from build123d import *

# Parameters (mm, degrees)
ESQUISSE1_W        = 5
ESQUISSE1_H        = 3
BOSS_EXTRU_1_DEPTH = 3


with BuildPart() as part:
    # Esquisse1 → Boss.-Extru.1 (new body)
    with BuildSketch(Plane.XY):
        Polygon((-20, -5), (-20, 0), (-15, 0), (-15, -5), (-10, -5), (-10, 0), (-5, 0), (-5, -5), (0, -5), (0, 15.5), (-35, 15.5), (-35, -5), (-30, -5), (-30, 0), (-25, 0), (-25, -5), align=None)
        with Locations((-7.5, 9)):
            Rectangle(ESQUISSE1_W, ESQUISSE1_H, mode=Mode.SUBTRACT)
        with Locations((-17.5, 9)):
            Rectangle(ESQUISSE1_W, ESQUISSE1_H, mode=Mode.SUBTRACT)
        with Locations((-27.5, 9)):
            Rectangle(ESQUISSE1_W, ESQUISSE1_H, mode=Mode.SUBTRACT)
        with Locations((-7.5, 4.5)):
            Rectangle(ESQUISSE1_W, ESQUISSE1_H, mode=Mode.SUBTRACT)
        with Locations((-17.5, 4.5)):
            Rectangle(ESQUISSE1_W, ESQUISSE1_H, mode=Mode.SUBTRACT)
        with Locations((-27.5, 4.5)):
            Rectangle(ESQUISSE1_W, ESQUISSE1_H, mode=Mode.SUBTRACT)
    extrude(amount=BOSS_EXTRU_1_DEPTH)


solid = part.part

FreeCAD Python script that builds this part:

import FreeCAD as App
import Part
import Sketcher
Q = App.Units.Quantity

doc = App.newDocument("Part")
body = doc.addObject("PartDesign::Body", "Body")

# Sketch on XY plane
sketch1 = doc.addObject("Sketcher::SketchObject", "Sketch")
body.addObject(sketch1)
sketch1.AttachmentSupport = (doc.XY_Plane, [""])
sketch1.MapMode = "FlatFace"
sketch1.addGeometry([
    Part.LineSegment(App.Vector(-20, -5, 0), App.Vector(-20, 0, 0)),  # 0
    Part.LineSegment(App.Vector(-20, 0, 0), App.Vector(-15, 0, 0)),  # 1
    Part.LineSegment(App.Vector(-15, 0, 0), App.Vector(-15, -5, 0)),  # 2
    Part.LineSegment(App.Vector(-15, -5, 0), App.Vector(-10, -5, 0)),  # 3
    Part.LineSegment(App.Vector(-10, -5, 0), App.Vector(-10, 0, 0)),  # 4
    Part.LineSegment(App.Vector(-10, 0, 0), App.Vector(-5, 0, 0)),  # 5
    Part.LineSegment(App.Vector(-5, 0, 0), App.Vector(-5, -5, 0)),  # 6
    Part.LineSegment(App.Vector(-5, -5, 0), App.Vector(0, -5, 0)),  # 7
    Part.LineSegment(App.Vector(0, -5, 0), App.Vector(0, 15.5, 0)),  # 8
    Part.LineSegment(App.Vector(0, 15.5, 0), App.Vector(-35, 15.5, 0)),  # 9
    Part.LineSegment(App.Vector(-35, 15.5, 0), App.Vector(-35, -5, 0)),  # 10
    Part.LineSegment(App.Vector(-35, -5, 0), App.Vector(-30, -5, 0)),  # 11
    Part.LineSegment(App.Vector(-30, -5, 0), App.Vector(-30, 0, 0)),  # 12
    Part.LineSegment(App.Vector(-30, 0, 0), App.Vector(-25, 0, 0)),  # 13
    Part.LineSegment(App.Vector(-25, 0, 0), App.Vector(-25, -5, 0)),  # 14
    Part.LineSegment(App.Vector(-25, -5, 0), App.Vector(-20, -5, 0)),  # 15
    Part.LineSegment(App.Vector(-25, 3, 0), App.Vector(-30, 3, 0)),  # 16
    Part.LineSegment(App.Vector(-30, 3, 0), App.Vector(-30, 6, 0)),  # 17
    Part.LineSegment(App.Vector(-30, 6, 0), App.Vector(-25, 6, 0)),  # 18
    Part.LineSegment(App.Vector(-25, 6, 0), App.Vector(-25, 3, 0)),  # 19
    Part.LineSegment(App.Vector(-15, 3, 0), App.Vector(-20, 3, 0)),  # 20
    Part.LineSegment(App.Vector(-20, 3, 0), App.Vector(-20, 6, 0)),  # 21
    Part.LineSegment(App.Vector(-20, 6, 0), App.Vector(-15, 6, 0)),  # 22
    Part.LineSegment(App.Vector(-15, 6, 0), App.Vector(-15, 3, 0)),  # 23
    Part.LineSegment(App.Vector(-5, 3, 0), App.Vector(-10, 3, 0)),  # 24
    Part.LineSegment(App.Vector(-10, 3, 0), App.Vector(-10, 6, 0)),  # 25
    Part.LineSegment(App.Vector(-10, 6, 0), App.Vector(-5, 6, 0)),  # 26
    Part.LineSegment(App.Vector(-5, 6, 0), App.Vector(-5, 3, 0)),  # 27
    Part.LineSegment(App.Vector(-25, 7.5, 0), App.Vector(-30, 7.5, 0)),  # 28
    Part.LineSegment(App.Vector(-30, 7.5, 0), App.Vector(-30, 10.5, 0)),  # 29
    Part.LineSegment(App.Vector(-30, 10.5, 0), App.Vector(-25, 10.5, 0)),  # 30
    Part.LineSegment(App.Vector(-25, 10.5, 0), App.Vector(-25, 7.5, 0)),  # 31
    Part.LineSegment(App.Vector(-15, 7.5, 0), App.Vector(-20, 7.5, 0)),  # 32
    Part.LineSegment(App.Vector(-20, 7.5, 0), App.Vector(-20, 10.5, 0)),  # 33
    Part.LineSegment(App.Vector(-20, 10.5, 0), App.Vector(-15, 10.5, 0)),  # 34
    Part.LineSegment(App.Vector(-15, 10.5, 0), App.Vector(-15, 7.5, 0)),  # 35
    Part.LineSegment(App.Vector(-5, 7.5, 0), App.Vector(-10, 7.5, 0)),  # 36
    Part.LineSegment(App.Vector(-10, 7.5, 0), App.Vector(-10, 10.5, 0)),  # 37
    Part.LineSegment(App.Vector(-10, 10.5, 0), App.Vector(-5, 10.5, 0)),  # 38
    Part.LineSegment(App.Vector(-5, 10.5, 0), App.Vector(-5, 7.5, 0)),  # 39
], False)
sketch1.addConstraint([
    Sketcher.Constraint("Coincident", 0, 2, 1, 1),
    Sketcher.Constraint("Coincident", 1, 2, 2, 1),
    Sketcher.Constraint("Coincident", 2, 2, 3, 1),
    Sketcher.Constraint("Coincident", 3, 2, 4, 1),
    Sketcher.Constraint("Coincident", 4, 2, 5, 1),
    Sketcher.Constraint("Coincident", 5, 2, 6, 1),
    Sketcher.Constraint("Coincident", 6, 2, 7, 1),
    Sketcher.Constraint("Coincident", 7, 2, 8, 1),
    Sketcher.Constraint("Coincident", 8, 2, 9, 1),
    Sketcher.Constraint("Coincident", 9, 2, 10, 1),
    Sketcher.Constraint("Coincident", 10, 2, 11, 1),
    Sketcher.Constraint("Coincident", 11, 2, 12, 1),
    Sketcher.Constraint("Coincident", 12, 2, 13, 1),
    Sketcher.Constraint("Coincident", 13, 2, 14, 1),
    Sketcher.Constraint("Coincident", 14, 2, 15, 1),
    Sketcher.Constraint("Coincident", 15, 2, 0, 1),
    Sketcher.Constraint("Coincident", 16, 2, 17, 1),
    Sketcher.Constraint("Coincident", 17, 2, 18, 1),
    Sketcher.Constraint("Coincident", 18, 2, 19, 1),
    Sketcher.Constraint("Coincident", 19, 2, 16, 1),
    Sketcher.Constraint("Coincident", 20, 2, 21, 1),
    Sketcher.Constraint("Coincident", 21, 2, 22, 1),
    Sketcher.Constraint("Coincident", 22, 2, 23, 1),
    Sketcher.Constraint("Coincident", 23, 2, 20, 1),
    Sketcher.Constraint("Coincident", 24, 2, 25, 1),
    Sketcher.Constraint("Coincident", 25, 2, 26, 1),
    Sketcher.Constraint("Coincident", 26, 2, 27, 1),
    Sketcher.Constraint("Coincident", 27, 2, 24, 1),
    Sketcher.Constraint("Coincident", 28, 2, 29, 1),
    Sketcher.Constraint("Coincident", 29, 2, 30, 1),
    Sketcher.Constraint("Coincident", 30, 2, 31, 1),
    Sketcher.Constraint("Coincident", 31, 2, 28, 1),
    Sketcher.Constraint("Coincident", 32, 2, 33, 1),
    Sketcher.Constraint("Coincident", 33, 2, 34, 1),
    Sketcher.Constraint("Coincident", 34, 2, 35, 1),
    Sketcher.Constraint("Coincident", 35, 2, 32, 1),
    Sketcher.Constraint("Coincident", 36, 2, 37, 1),
    Sketcher.Constraint("Coincident", 37, 2, 38, 1),
    Sketcher.Constraint("Coincident", 38, 2, 39, 1),
    Sketcher.Constraint("Coincident", 39, 2, 36, 1),
    Sketcher.Constraint("Vertical", 0),
    Sketcher.Constraint("Horizontal", 1),
    Sketcher.Constraint("Vertical", 2),
    Sketcher.Constraint("Horizontal", 3),
    Sketcher.Constraint("Vertical", 4),
    Sketcher.Constraint("Horizontal", 5),
    Sketcher.Constraint("Vertical", 6),
    Sketcher.Constraint("Horizontal", 7),
    Sketcher.Constraint("Vertical", 8),
    Sketcher.Constraint("Horizontal", 9),
    Sketcher.Constraint("Vertical", 10),
    Sketcher.Constraint("Horizontal", 11),
    Sketcher.Constraint("Vertical", 12),
    Sketcher.Constraint("Horizontal", 13),
    Sketcher.Constraint("Vertical", 14),
    Sketcher.Constraint("Horizontal", 15),
    Sketcher.Constraint("Horizontal", 16),
    Sketcher.Constraint("Vertical", 17),
    Sketcher.Constraint("Horizontal", 18),
    Sketcher.Constraint("Vertical", 19),
    Sketcher.Constraint("Horizontal", 20),
    Sketcher.Constraint("Vertical", 21),
    Sketcher.Constraint("Horizontal", 22),
    Sketcher.Constraint("Vertical", 23),
    Sketcher.Constraint("Horizontal", 24),
    Sketcher.Constraint("Vertical", 25),
    Sketcher.Constraint("Horizontal", 26),
    Sketcher.Constraint("Vertical", 27),
    Sketcher.Constraint("Horizontal", 28),
    Sketcher.Constraint("Vertical", 29),
    Sketcher.Constraint("Horizontal", 30),
    Sketcher.Constraint("Vertical", 31),
    Sketcher.Constraint("Horizontal", 32),
    Sketcher.Constraint("Vertical", 33),
    Sketcher.Constraint("Horizontal", 34),
    Sketcher.Constraint("Vertical", 35),
    Sketcher.Constraint("Horizontal", 36),
    Sketcher.Constraint("Vertical", 37),
    Sketcher.Constraint("Horizontal", 38),
    Sketcher.Constraint("Vertical", 39),
    Sketcher.Constraint("PointOnObject", 0, 2, -1),
    Sketcher.Constraint("PointOnObject", 4, 2, -1),
    Sketcher.Constraint("PointOnObject", 7, 2, -2),
    Sketcher.Constraint("PointOnObject", 12, 2, -1),
    Sketcher.Constraint("Horizontal", 3, 2, 6, 2),
    Sketcher.Constraint("Horizontal", 7, 2, 10, 2),
    Sketcher.Constraint("Horizontal", 11, 2, 14, 2),
    Sketcher.Constraint("Horizontal", 19, 2, 20, 2),
    Sketcher.Constraint("Horizontal", 18, 2, 21, 2),
    Sketcher.Constraint("Horizontal", 23, 2, 24, 2),
    Sketcher.Constraint("Horizontal", 22, 2, 25, 2),
    Sketcher.Constraint("Horizontal", 31, 2, 32, 2),
    Sketcher.Constraint("Horizontal", 30, 2, 33, 2),
    Sketcher.Constraint("Horizontal", 35, 2, 36, 2),
    Sketcher.Constraint("Horizontal", 34, 2, 37, 2),
    Sketcher.Constraint("Vertical", 12, 2, 16, 2),
    Sketcher.Constraint("Vertical", 14, 2, 18, 2),
    Sketcher.Constraint("Vertical", 15, 2, 20, 2),
    Sketcher.Constraint("Vertical", 2, 2, 22, 2),
    Sketcher.Constraint("Vertical", 4, 2, 24, 2),
    Sketcher.Constraint("Vertical", 6, 2, 26, 2),
    Sketcher.Constraint("Vertical", 17, 2, 28, 2),
    Sketcher.Constraint("Vertical", 19, 2, 30, 2),
    Sketcher.Constraint("Vertical", 21, 2, 32, 2),
    Sketcher.Constraint("Vertical", 23, 2, 34, 2),
    Sketcher.Constraint("Vertical", 25, 2, 36, 2),
    Sketcher.Constraint("Vertical", 27, 2, 38, 2),
    Sketcher.Constraint("Equal", 1, 3),
    Sketcher.Constraint("Equal", 3, 5),
    Sketcher.Constraint("Equal", 5, 7),
    Sketcher.Constraint("Equal", 7, 11),
    Sketcher.Constraint("Equal", 11, 13),
    Sketcher.Constraint("Equal", 13, 15),
    Sketcher.Constraint("Equal", 38, 0),
    Sketcher.Constraint("Equal", 27, 29),
    Sketcher.Constraint("DistanceX", 1, 1, 1, 2, Q("5 mm")),
    Sketcher.Constraint("DistanceY", 17, 1, 17, 2, Q("3 mm")),
    Sketcher.Constraint("DistanceY", 8, 1, 8, 2, Q("20.5 mm")),
    Sketcher.Constraint("DistanceY", -1, 1, 16, 2, Q("3 mm")),
    Sketcher.Constraint("DistanceY", 29, 2, 9, 2, Q("5 mm")),
])
pad1 = doc.addObject("PartDesign::Pad", "Pad")
body.addObject(pad1)
pad1.Profile = sketch1
pad1.Length = 3

doc.recompute()
